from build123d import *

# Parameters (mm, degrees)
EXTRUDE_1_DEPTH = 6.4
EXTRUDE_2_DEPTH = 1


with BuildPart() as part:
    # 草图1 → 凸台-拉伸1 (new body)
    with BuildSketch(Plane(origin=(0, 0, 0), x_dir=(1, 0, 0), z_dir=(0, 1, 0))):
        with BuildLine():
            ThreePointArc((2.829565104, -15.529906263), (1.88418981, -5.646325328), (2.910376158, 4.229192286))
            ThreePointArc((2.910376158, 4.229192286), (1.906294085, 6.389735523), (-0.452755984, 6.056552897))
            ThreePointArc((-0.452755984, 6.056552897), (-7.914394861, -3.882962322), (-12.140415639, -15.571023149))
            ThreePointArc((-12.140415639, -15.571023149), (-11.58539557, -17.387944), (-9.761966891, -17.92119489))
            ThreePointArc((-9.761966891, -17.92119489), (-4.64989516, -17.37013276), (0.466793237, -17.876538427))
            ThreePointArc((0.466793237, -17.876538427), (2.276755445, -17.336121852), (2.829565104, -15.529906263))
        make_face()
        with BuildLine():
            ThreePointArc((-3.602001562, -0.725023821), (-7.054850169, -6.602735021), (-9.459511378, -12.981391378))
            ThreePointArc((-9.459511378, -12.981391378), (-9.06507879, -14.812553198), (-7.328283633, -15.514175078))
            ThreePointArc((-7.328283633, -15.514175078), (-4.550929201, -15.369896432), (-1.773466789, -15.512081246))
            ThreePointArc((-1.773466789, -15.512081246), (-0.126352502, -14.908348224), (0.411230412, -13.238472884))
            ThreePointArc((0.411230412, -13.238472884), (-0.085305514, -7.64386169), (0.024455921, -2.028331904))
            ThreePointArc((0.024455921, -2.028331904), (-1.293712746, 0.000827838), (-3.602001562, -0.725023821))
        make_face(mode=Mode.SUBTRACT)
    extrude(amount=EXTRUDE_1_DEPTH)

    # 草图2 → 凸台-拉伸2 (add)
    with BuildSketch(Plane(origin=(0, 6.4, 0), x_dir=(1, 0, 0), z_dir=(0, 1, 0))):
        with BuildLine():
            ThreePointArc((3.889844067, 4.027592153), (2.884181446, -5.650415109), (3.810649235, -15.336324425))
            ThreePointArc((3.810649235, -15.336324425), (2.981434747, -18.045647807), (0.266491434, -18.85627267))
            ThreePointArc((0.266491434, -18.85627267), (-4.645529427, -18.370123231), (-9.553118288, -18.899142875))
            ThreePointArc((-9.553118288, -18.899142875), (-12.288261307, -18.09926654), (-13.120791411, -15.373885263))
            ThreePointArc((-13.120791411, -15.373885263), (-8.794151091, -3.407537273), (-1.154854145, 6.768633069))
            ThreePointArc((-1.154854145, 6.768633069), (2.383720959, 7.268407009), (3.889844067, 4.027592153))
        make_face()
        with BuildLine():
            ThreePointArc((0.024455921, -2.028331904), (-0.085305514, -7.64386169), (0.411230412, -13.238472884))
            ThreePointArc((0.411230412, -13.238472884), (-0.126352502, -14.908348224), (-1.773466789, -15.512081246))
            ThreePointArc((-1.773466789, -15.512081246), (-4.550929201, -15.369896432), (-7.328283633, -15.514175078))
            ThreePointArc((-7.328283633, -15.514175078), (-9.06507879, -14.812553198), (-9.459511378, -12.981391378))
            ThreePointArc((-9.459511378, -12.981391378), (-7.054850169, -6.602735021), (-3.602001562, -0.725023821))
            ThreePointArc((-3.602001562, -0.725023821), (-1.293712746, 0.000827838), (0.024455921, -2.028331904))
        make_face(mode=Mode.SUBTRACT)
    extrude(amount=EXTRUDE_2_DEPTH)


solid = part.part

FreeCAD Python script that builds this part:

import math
import FreeCAD as App
import Part
import Sketcher

V = App.Vector

doc = App.newDocument("Part")
params = doc.addObject("Spreadsheet::Sheet", "Params")
for row, (alias, value) in enumerate([
    ("sketch1_radius", "50 mm"),
    ("sketch1_radius2", "2 mm"),
    ("sketch1_radius3", "42 mm"),
    ("sketch1_radius4", "25 mm"),
    ("sketch1_radius5", "40 mm"),
    ("pad1_length", "6.4 mm"),
    ("sketch2_radius", "49 mm"),
    ("sketch2_radius2", "3 mm"),
    ("sketch2_radius3", "43 mm"),
    ("sketch2_radius4", "24 mm"),
    ("sketch2_radius5", "52 mm"),
    ("pad2_length", "1 mm"),
], start=1):
    params.set(f"A{row}", alias)
    params.set(f"B{row}", "=" + value)
    params.setAlias(f"B{row}", alias)

body = doc.addObject("PartDesign::Body", "Body")

sketch1 = body.newObject("Sketcher::SketchObject", "Sketch")
sketch1.AttachmentSupport = (doc.getObject("XZ_Plane"), [""])
sketch1.MapMode = "FlatFace"
sketch1.addGeometry(Part.ArcOfCircle(Part.Circle(V(51.9, 5.9, 0), V(0, 0, 1), 50), math.radians(169), math.radians(192)), False)
sketch1.addGeometry(Part.ArcOfCircle(Part.Circle(V(1, -4.6, 0), V(0, 0, 1), 2), math.radians(-135), math.radians(12)), False)
sketch1.addGeometry(Part.ArcOfCircle(Part.Circle(V(29, 23.9, 0), V(0, 0, 1), 42), math.radians(-169), math.radians(-135)), False)
sketch1.addGeometry(Part.ArcOfCircle(Part.Circle(V(-10.2, 16, 0), V(0, 0, 1), 2), math.radians(78), math.radians(191)), False)
sketch1.addGeometry(Part.ArcOfCircle(Part.Circle(V(-4.5, 42.4, 0), V(0, 0, 1), 25), math.radians(-102), math.radians(-78)), False)
sketch1.addGeometry(Part.ArcOfCircle(Part.Circle(V(0.9, 15.9, 0), V(0, 0, 1), 2), math.radians(-11), math.radians(102)), False)
sketch1.addGeometry(Part.ArcOfCircle(Part.Circle(V(29, 23.9, 0), V(0, 0, 1), 40), math.radians(-164.23), math.radians(-144.68)), False)
sketch1.addGeometry(Part.ArcOfCircle(Part.Circle(V(-2, 1.9, 0), V(0, 0, 1), 2), math.radians(-145), math.radians(4)), False)
sketch1.addGeometry(Part.ArcOfCircle(Part.Circle(V(51.9, 5.9, 0), V(0, 0, 1), 52), math.radians(171.83), math.radians(184.22)), False)
sketch1.addGeometry(Part.ArcOfCircle(Part.Circle(V(-1.6, 13.5, 0), V(0, 0, 1), 2), math.radians(-8), math.radians(96)), False)
sketch1.addGeometry(Part.ArcOfCircle(Part.Circle(V(-4.5, 42.4, 0), V(0, 0, 1), 27), math.radians(-95.93), math.radians(-84.12)), False)
sketch1.addGeometry(Part.ArcOfCircle(Part.Circle(V(-7.5, 13.5, 0), V(0, 0, 1), 2), math.radians(84), math.radians(196)), False)
sketch1.addConstraint(Sketcher.Constraint("Tangent", 0, 2, 1, 2))
sketch1.addConstraint(Sketcher.Constraint("Tangent", 1, 1, 2, 2))
sketch1.addConstraint(Sketcher.Constraint("Tangent", 2, 1, 3, 2))
sketch1.addConstraint(Sketcher.Constraint("Tangent", 3, 1, 4, 1))
sketch1.addConstraint(Sketcher.Constraint("Tangent", 4, 2, 5, 2))
sketch1.addConstraint(Sketcher.Constraint("Tangent", 5, 1, 0, 1))
sketch1.addConstraint(Sketcher.Constraint("Tangent", 6, 2, 7, 1))
sketch1.addConstraint(Sketcher.Constraint("Tangent", 7, 2, 8, 2))
sketch1.addConstraint(Sketcher.Constraint("Tangent", 8, 1, 9, 1))
sketch1.addConstraint(Sketcher.Constraint("Tangent", 9, 2, 10, 2))
sketch1.addConstraint(Sketcher.Constraint("Tangent", 10, 1, 11, 1))
sketch1.addConstraint(Sketcher.Constraint("Tangent", 11, 2, 6, 1))
sketch1.addConstraint(Sketcher.Constraint("Coincident", 6, 3, 2, 3))
sketch1.addConstraint(Sketcher.Constraint("Coincident", 8, 3, 0, 3))
sketch1.addConstraint(Sketcher.Constraint("Coincident", 10, 3, 4, 3))
sketch1.addConstraint(Sketcher.Constraint("Equal", 1, 3))
sketch1.addConstraint(Sketcher.Constraint("Equal", 3, 5))
sketch1.addConstraint(Sketcher.Constraint("Equal", 5, 7))
sketch1.addConstraint(Sketcher.Constraint("Equal", 7, 9))
sketch1.addConstraint(Sketcher.Constraint("Equal", 9, 11))
sketch1.addConstraint(Sketcher.Constraint("Radius", 0, 50.0))
sketch1.addConstraint(Sketcher.Constraint("Radius", 1, 2.0))
sketch1.addConstraint(Sketcher.Constraint("Radius", 2, 42.0))
sketch1.addConstraint(Sketcher.Constraint("Radius", 4, 25.0))
sketch1.addConstraint(Sketcher.Constraint("Radius", 6, 40.0))
sketch1.addConstraint(Sketcher.Constraint("Radius", 8, 52.0))
sketch1.addConstraint(Sketcher.Constraint("Radius", 10, 27.0))
sketch1.addConstraint(Sketcher.Constraint("DistanceY", 0, 3, 2, 3, 18.0))
sketch1.addConstraint(Sketcher.Constraint("DistanceX", 6, 2, -1, 1, 3.602002))
sketch1.addConstraint(Sketcher.Constraint("DistanceY", -1, 1, 3, 3, 15.965299))
sketch1.addConstraint(Sketcher.Constraint("DistanceX", 7, 3, 2, 3, 31.0055))
sketch1.addConstraint(Sketcher.Constraint("DistanceY", 7, 3, 9, 3, 11.6413))
sketch1.addConstraint(Sketcher.Constraint("DistanceX", 3, 1, 11, 3, 2.227199))
sketch1.setExpression("Constraints[20]", "Params.sketch1_radius")
sketch1.setExpression("Constraints[21]", "Params.sketch1_radius2")
sketch1.setExpression("Constraints[22]", "Params.sketch1_radius3")
sketch1.setExpression("Constraints[23]", "Params.sketch1_radius4")
sketch1.setExpression("Constraints[24]", "Params.sketch1_radius5")
pad1 = body.newObject("PartDesign::Pad", "Pad")
pad1.Profile = sketch1
pad1.setExpression("Length", "Params.pad1_length")
pad1.Reversed = True

sketch2 = body.newObject("Sketcher::SketchObject", "Sketch001")
sketch2.AttachmentSupport = (doc.getObject("XZ_Plane"), [""])
sketch2.MapMode = "FlatFace"
sketch2.AttachmentOffset = App.Placement(V(0, 0, -6.4), App.Rotation())
sketch2.addGeometry(Part.ArcOfCircle(Part.Circle(V(51.9, 5.9, 0), V(0, 0, 1), 49), math.radians(169), math.radians(192)), False)
sketch2.addGeometry(Part.ArcOfCircle(Part.Circle(V(1, -4.6, 0), V(0, 0, 1), 3), math.radians(-135), math.radians(12)), False)
sketch2.addGeometry(Part.ArcOfCircle(Part.Circle(V(29, 23.9, 0), V(0, 0, 1), 43), math.radians(-169), math.radians(-135)), False)
sketch2.addGeometry(Part.ArcOfCircle(Part.Circle(V(-10.2, 16, 0), V(0, 0, 1), 3), math.radians(78), math.radians(191)), False)
sketch2.addGeometry(Part.ArcOfCircle(Part.Circle(V(-4.5, 42.4, 0), V(0, 0, 1), 24), math.radians(-102), math.radians(-78)), False)
sketch2.addGeometry(Part.ArcOfCircle(Part.Circle(V(0.9, 15.9, 0), V(0, 0, 1), 3), math.radians(-11), math.radians(102)), False)
sketch2.addGeometry(Part.ArcOfCircle(Part.Circle(V(51.9, 5.9, 0), V(0, 0, 1), 52), math.radians(171.83), math.radians(184.22)), False)
sketch2.addGeometry(Part.ArcOfCircle(Part.Circle(V(-1.6, 13.5, 0), V(0, 0, 1), 2), math.radians(-8), math.radians(96)), False)
sketch2.addGeometry(Part.ArcOfCircle(Part.Circle(V(-4.5, 42.4, 0), V(0, 0, 1), 27), math.radians(-95.93), math.radians(-84.12)), False)
sketch2.addGeometry(Part.ArcOfCircle(Part.Circle(V(-7.5, 13.5, 0), V(0, 0, 1), 2), math.radians(84), math.radians(196)), False)
sketch2.addGeometry(Part.ArcOfCircle(Part.Circle(V(29, 23.9, 0), V(0, 0, 1), 40), math.radians(-164.23), math.radians(-144.68)), False)
sketch2.addGeometry(Part.ArcOfCircle(Part.Circle(V(-2, 1.9, 0), V(0, 0, 1), 2), math.radians(-145), math.radians(4)), False)
sketch2.addConstraint(Sketcher.Constraint("Tangent", 0, 2, 1, 2))
sketch2.addConstraint(Sketcher.Constraint("Tangent", 1, 1, 2, 2))
sketch2.addConstraint(Sketcher.Constraint("Tangent", 2, 1, 3, 2))
sketch2.addConstraint(Sketcher.Constraint("Tangent", 3, 1, 4, 1))
sketch2.addConstraint(Sketcher.Constraint("Tangent", 4, 2, 5, 2))
sketch2.addConstraint(Sketcher.Constraint("Tangent", 5, 1, 0, 1))
sketch2.addConstraint(Sketcher.Constraint("Tangent", 6, 1, 7, 1))
sketch2.addConstraint(Sketcher.Constraint("Tangent", 7, 2, 8, 2))
sketch2.addConstraint(Sketcher.Constraint("Tangent", 8, 1, 9, 1))
sketch2.addConstraint(Sketcher.Constraint("Tangent", 9, 2, 10, 1))
sketch2.addConstraint(Sketcher.Constraint("Tangent", 10, 2, 11, 1))
sketch2.addConstraint(Sketcher.Constraint("Tangent", 11, 2, 6, 2))
sketch2.addConstraint(Sketcher.Constraint("Coincident", 6, 3, 0, 3))
sketch2.addConstraint(Sketcher.Constraint("Coincident", 8, 3, 4, 3))
sketch2.addConstraint(Sketcher.Constraint("Coincident", 10, 3, 2, 3))
sketch2.addConstraint(Sketcher.Constraint("Equal", 1, 3))
sketch2.addConstraint(Sketcher.Constraint("Equal", 3, 5))
sketch2.addConstraint(Sketcher.Constraint("Equal", 7, 9))
sketch2.addConstraint(Sketcher.Constraint("Equal", 9, 11))
sketch2.addConstraint(Sketcher.Constraint("Radius", 0, 49.0))
sketch2.addConstraint(Sketcher.Constraint("Radius", 1, 3.0))
sketch2.addConstraint(Sketcher.Constraint("Radius", 2, 43.0))
sketch2.addConstraint(Sketcher.Constraint("Radius", 4, 24.0))
sketch2.addConstraint(Sketcher.Constraint("Radius", 6, 52.0))
sketch2.addConstraint(Sketcher.Constraint("Radius", 7, 2.0))
sketch2.addConstraint(Sketcher.Constraint("Radius", 8, 27.0))
sketch2.addConstraint(Sketcher.Constraint("Radius", 10, 40.0))
sketch2.addConstraint(Sketcher.Constraint("DistanceY", 0, 3, 2, 3, 18.0))
sketch2.addConstraint(Sketcher.Constraint("DistanceX", 10, 2, -1, 1, 3.602002))
sketch2.addConstraint(Sketcher.Constraint("DistanceY", -1, 1, 3, 3, 15.965299))
sketch2.addConstraint(Sketcher.Constraint("DistanceY", 7, 3, 2, 3, 10.328201))
sketch2.addConstraint(Sketcher.Constraint("DistanceY", 11, 3, 7, 3, 11.6413))
sketch2.addConstraint(Sketcher.Constraint("DistanceX", 4, 3, -1, 1, 4.540752))
sketch2.setExpression("Constraints[19]", "Params.sketch2_radius")
sketch2.setExpression("Constraints[20]", "Params.sketch2_radius2")
sketch2.setExpression("Constraints[21]", "Params.sketch2_radius3")
sketch2.setExpression("Constraints[22]", "Params.sketch2_radius4")
sketch2.setExpression("Constraints[23]", "Params.sketch2_radius5")
pad2 = body.newObject("PartDesign::Pad", "Pad001")
pad2.Profile = sketch2
pad2.setExpression("Length", "Params.pad2_length")
pad2.Reversed = True

doc.recompute()
